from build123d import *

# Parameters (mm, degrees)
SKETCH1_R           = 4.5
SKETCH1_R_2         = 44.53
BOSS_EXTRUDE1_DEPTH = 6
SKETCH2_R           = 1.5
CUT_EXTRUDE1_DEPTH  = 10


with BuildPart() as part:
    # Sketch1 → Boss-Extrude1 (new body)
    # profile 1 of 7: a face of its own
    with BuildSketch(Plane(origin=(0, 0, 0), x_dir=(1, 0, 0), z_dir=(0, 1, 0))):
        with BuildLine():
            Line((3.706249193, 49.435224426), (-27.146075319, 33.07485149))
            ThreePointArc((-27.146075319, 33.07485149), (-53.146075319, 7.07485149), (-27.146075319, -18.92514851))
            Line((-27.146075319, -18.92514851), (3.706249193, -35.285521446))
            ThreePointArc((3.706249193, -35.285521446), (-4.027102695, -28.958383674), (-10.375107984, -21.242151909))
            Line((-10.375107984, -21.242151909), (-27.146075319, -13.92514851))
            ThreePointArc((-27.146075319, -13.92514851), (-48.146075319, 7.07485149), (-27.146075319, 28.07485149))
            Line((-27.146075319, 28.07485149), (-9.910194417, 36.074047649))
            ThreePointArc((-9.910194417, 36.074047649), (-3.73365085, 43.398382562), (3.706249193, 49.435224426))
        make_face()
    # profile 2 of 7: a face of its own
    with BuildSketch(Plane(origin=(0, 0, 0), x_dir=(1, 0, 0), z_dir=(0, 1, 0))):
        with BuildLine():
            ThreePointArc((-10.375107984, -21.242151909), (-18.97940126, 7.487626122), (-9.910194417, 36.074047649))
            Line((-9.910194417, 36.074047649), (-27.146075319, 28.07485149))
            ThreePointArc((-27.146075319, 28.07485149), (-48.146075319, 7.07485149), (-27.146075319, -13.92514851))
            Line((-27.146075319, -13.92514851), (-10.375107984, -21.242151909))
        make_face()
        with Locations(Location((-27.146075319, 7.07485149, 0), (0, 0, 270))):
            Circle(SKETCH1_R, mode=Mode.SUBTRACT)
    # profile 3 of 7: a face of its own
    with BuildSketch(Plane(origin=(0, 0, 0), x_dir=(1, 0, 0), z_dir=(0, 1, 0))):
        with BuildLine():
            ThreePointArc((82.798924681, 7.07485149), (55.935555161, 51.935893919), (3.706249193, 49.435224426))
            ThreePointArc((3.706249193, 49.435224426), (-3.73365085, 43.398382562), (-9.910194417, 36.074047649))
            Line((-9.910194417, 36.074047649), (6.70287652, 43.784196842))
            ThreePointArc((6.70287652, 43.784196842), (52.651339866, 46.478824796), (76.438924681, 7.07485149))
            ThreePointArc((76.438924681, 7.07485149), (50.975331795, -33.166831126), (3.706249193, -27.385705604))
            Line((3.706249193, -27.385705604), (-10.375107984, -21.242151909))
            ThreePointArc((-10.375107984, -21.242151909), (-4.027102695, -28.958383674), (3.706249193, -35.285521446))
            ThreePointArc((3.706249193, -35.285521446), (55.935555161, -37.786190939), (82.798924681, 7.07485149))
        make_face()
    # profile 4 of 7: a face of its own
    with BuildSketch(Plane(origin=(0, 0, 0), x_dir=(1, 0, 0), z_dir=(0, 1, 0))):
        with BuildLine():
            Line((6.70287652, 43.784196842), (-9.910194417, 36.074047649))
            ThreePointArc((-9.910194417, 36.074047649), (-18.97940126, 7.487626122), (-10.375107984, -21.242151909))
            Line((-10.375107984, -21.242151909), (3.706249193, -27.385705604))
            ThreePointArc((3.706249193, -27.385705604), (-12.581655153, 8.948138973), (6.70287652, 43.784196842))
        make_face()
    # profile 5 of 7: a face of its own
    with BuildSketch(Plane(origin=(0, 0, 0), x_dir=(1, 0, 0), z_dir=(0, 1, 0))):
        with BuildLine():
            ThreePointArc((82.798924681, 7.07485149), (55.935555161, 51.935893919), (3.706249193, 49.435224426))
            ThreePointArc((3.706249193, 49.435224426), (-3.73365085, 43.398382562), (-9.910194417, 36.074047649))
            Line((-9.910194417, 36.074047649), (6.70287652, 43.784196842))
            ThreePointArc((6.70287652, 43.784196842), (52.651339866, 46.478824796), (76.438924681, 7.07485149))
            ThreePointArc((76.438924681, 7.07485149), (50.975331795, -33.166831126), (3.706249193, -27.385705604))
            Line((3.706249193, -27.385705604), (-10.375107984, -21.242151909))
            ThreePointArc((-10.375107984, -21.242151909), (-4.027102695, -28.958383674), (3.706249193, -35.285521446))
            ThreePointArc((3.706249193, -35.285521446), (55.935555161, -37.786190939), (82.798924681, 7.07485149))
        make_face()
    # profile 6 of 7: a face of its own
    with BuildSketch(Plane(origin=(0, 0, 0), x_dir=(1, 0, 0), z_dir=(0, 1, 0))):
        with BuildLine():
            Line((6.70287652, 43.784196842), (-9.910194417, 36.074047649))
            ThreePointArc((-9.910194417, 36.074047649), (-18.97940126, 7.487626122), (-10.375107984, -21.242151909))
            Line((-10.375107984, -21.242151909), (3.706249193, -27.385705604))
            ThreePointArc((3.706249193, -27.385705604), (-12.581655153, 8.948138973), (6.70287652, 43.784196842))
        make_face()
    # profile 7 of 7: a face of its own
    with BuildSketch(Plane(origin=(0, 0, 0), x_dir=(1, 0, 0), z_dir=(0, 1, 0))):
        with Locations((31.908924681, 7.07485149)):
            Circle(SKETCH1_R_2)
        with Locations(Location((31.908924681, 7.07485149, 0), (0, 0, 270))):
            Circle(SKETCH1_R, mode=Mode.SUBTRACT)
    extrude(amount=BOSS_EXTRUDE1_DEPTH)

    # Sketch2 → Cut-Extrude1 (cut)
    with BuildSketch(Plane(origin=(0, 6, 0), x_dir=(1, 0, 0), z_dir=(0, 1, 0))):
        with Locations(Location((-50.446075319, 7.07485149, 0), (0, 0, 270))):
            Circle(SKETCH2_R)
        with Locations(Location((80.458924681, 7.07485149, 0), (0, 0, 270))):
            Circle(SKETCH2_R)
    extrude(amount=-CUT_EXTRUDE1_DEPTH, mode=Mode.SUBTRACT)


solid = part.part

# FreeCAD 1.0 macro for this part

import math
import FreeCAD as App
import Part
import Sketcher

V = App.Vector

doc = App.newDocument("Part")
body = doc.addObject("PartDesign::Body", "Body")

# Sketch on XZ plane
sketch1 = body.newObject("Sketcher::SketchObject", "Sketch")
sketch1.AttachmentSupport = (doc.getObject("XZ_Plane"), [""])
sketch1.MapMode = "FlatFace"
sketch1.addGeometry([
    Part.LineSegment(V(3.7, -49.4, 0), V(-27.1, -33.1, 0)),  # 0
    Part.ArcOfCircle(Part.Circle(V(-27.1, -7.1, 0), V(0, 0, 1), 26), math.radians(90), math.radians(270)),  # 1
    Part.LineSegment(V(-27.1, 18.9, 0), V(3.7, 35.3, 0)),  # 2
    Part.ArcOfCircle(Part.Circle(V(31.9, -7.1, 0), V(0, 0, 1), 50.9), math.radians(0), math.radians(124)),  # 3
    Part.ArcOfCircle(Part.Circle(V(31.9, -7.1, 0), V(0, 0, 1), 50.9), math.radians(-124), math.radians(0)),  # 4
    Part.Circle(V(-27.1, -7.1, 0), V(0, 0, 1), 4.5),  # 5
    Part.Circle(V(31.9, -7.1, 0), V(0, 0, 1), 4.5),  # 6
], False)
sketch1.addConstraint([
    Sketcher.Constraint("Coincident", 0, 2, 1, 2),
    Sketcher.Constraint("Coincident", 1, 1, 2, 1),
    Sketcher.Constraint("Coincident", 2, 2, 3, 2),
    Sketcher.Constraint("Tangent", 3, 1, 4, 2),
    Sketcher.Constraint("Coincident", 4, 1, 0, 1),
    Sketcher.Constraint("Coincident", 5, 3, 1, 3),
    Sketcher.Constraint("Coincident", 6, 3, 3, 3),
    Sketcher.Constraint("Equal", 3, 4),
    Sketcher.Constraint("Equal", 5, 6),
    Sketcher.Constraint("Horizontal", 1, 3, 3, 3),
    Sketcher.Constraint("Horizontal", 6, 3, 3, 1),
    Sketcher.Constraint("Vertical", 5, 3, 0, 2),
    Sketcher.Constraint("Vertical", 0, 2, 1, 1),
    Sketcher.Constraint("Vertical", 2, 2, 4, 1),
    Sketcher.Constraint("Diameter", 5, 9.0),
    Sketcher.Constraint("Radius", 1, 26.0),
    Sketcher.Constraint("Radius", 3, 50.89),
    Sketcher.Constraint("DistanceX", 1, 3, 3, 3, 59.055),
    Sketcher.Constraint("DistanceY", 1, 3, -1, 1, 7.074851),
    Sketcher.Constraint("DistanceX", -1, 1, 2, 2, 3.706249),
    Sketcher.Constraint("DistanceY", -1, 1, 2, 2, 35.285521),
])
pad1 = body.newObject("PartDesign::Pad", "Pad")
pad1.Profile = sketch1
pad1.Length = 6
pad1.Reversed = True

# Sketch on XZ plane
sketch2 = body.newObject("Sketcher::SketchObject", "Sketch001")
sketch2.AttachmentSupport = (doc.getObject("XZ_Plane"), [""])
sketch2.MapMode = "FlatFace"
sketch2.AttachmentOffset = App.Placement(V(0, 0, -6), App.Rotation())
sketch2.addGeometry([
    Part.Circle(V(-50.4, -7.1, 0), V(0, 0, 1), 1.5),
    Part.Circle(V(80.5, -7.1, 0), V(0, 0, 1), 1.5),
], False)
sketch2.addConstraint([
    Sketcher.Constraint("Equal", 0, 1),
    Sketcher.Constraint("Horizontal", 0, 3, 1, 3),
    Sketcher.Constraint("Diameter", 0, 3.0),
    Sketcher.Constraint("DistanceX", 0, 3, 1, 3, 130.905),
    Sketcher.Constraint("DistanceY", 0, 3, -1, 1, 7.074851),
    Sketcher.Constraint("DistanceX", 0, 3, -1, 1, 50.446075),
])
pocket1 = body.newObject("PartDesign::Pocket", "Pocket")
pocket1.Profile = sketch2
pocket1.Length = 10
pocket1.Reversed = True

doc.recompute()
